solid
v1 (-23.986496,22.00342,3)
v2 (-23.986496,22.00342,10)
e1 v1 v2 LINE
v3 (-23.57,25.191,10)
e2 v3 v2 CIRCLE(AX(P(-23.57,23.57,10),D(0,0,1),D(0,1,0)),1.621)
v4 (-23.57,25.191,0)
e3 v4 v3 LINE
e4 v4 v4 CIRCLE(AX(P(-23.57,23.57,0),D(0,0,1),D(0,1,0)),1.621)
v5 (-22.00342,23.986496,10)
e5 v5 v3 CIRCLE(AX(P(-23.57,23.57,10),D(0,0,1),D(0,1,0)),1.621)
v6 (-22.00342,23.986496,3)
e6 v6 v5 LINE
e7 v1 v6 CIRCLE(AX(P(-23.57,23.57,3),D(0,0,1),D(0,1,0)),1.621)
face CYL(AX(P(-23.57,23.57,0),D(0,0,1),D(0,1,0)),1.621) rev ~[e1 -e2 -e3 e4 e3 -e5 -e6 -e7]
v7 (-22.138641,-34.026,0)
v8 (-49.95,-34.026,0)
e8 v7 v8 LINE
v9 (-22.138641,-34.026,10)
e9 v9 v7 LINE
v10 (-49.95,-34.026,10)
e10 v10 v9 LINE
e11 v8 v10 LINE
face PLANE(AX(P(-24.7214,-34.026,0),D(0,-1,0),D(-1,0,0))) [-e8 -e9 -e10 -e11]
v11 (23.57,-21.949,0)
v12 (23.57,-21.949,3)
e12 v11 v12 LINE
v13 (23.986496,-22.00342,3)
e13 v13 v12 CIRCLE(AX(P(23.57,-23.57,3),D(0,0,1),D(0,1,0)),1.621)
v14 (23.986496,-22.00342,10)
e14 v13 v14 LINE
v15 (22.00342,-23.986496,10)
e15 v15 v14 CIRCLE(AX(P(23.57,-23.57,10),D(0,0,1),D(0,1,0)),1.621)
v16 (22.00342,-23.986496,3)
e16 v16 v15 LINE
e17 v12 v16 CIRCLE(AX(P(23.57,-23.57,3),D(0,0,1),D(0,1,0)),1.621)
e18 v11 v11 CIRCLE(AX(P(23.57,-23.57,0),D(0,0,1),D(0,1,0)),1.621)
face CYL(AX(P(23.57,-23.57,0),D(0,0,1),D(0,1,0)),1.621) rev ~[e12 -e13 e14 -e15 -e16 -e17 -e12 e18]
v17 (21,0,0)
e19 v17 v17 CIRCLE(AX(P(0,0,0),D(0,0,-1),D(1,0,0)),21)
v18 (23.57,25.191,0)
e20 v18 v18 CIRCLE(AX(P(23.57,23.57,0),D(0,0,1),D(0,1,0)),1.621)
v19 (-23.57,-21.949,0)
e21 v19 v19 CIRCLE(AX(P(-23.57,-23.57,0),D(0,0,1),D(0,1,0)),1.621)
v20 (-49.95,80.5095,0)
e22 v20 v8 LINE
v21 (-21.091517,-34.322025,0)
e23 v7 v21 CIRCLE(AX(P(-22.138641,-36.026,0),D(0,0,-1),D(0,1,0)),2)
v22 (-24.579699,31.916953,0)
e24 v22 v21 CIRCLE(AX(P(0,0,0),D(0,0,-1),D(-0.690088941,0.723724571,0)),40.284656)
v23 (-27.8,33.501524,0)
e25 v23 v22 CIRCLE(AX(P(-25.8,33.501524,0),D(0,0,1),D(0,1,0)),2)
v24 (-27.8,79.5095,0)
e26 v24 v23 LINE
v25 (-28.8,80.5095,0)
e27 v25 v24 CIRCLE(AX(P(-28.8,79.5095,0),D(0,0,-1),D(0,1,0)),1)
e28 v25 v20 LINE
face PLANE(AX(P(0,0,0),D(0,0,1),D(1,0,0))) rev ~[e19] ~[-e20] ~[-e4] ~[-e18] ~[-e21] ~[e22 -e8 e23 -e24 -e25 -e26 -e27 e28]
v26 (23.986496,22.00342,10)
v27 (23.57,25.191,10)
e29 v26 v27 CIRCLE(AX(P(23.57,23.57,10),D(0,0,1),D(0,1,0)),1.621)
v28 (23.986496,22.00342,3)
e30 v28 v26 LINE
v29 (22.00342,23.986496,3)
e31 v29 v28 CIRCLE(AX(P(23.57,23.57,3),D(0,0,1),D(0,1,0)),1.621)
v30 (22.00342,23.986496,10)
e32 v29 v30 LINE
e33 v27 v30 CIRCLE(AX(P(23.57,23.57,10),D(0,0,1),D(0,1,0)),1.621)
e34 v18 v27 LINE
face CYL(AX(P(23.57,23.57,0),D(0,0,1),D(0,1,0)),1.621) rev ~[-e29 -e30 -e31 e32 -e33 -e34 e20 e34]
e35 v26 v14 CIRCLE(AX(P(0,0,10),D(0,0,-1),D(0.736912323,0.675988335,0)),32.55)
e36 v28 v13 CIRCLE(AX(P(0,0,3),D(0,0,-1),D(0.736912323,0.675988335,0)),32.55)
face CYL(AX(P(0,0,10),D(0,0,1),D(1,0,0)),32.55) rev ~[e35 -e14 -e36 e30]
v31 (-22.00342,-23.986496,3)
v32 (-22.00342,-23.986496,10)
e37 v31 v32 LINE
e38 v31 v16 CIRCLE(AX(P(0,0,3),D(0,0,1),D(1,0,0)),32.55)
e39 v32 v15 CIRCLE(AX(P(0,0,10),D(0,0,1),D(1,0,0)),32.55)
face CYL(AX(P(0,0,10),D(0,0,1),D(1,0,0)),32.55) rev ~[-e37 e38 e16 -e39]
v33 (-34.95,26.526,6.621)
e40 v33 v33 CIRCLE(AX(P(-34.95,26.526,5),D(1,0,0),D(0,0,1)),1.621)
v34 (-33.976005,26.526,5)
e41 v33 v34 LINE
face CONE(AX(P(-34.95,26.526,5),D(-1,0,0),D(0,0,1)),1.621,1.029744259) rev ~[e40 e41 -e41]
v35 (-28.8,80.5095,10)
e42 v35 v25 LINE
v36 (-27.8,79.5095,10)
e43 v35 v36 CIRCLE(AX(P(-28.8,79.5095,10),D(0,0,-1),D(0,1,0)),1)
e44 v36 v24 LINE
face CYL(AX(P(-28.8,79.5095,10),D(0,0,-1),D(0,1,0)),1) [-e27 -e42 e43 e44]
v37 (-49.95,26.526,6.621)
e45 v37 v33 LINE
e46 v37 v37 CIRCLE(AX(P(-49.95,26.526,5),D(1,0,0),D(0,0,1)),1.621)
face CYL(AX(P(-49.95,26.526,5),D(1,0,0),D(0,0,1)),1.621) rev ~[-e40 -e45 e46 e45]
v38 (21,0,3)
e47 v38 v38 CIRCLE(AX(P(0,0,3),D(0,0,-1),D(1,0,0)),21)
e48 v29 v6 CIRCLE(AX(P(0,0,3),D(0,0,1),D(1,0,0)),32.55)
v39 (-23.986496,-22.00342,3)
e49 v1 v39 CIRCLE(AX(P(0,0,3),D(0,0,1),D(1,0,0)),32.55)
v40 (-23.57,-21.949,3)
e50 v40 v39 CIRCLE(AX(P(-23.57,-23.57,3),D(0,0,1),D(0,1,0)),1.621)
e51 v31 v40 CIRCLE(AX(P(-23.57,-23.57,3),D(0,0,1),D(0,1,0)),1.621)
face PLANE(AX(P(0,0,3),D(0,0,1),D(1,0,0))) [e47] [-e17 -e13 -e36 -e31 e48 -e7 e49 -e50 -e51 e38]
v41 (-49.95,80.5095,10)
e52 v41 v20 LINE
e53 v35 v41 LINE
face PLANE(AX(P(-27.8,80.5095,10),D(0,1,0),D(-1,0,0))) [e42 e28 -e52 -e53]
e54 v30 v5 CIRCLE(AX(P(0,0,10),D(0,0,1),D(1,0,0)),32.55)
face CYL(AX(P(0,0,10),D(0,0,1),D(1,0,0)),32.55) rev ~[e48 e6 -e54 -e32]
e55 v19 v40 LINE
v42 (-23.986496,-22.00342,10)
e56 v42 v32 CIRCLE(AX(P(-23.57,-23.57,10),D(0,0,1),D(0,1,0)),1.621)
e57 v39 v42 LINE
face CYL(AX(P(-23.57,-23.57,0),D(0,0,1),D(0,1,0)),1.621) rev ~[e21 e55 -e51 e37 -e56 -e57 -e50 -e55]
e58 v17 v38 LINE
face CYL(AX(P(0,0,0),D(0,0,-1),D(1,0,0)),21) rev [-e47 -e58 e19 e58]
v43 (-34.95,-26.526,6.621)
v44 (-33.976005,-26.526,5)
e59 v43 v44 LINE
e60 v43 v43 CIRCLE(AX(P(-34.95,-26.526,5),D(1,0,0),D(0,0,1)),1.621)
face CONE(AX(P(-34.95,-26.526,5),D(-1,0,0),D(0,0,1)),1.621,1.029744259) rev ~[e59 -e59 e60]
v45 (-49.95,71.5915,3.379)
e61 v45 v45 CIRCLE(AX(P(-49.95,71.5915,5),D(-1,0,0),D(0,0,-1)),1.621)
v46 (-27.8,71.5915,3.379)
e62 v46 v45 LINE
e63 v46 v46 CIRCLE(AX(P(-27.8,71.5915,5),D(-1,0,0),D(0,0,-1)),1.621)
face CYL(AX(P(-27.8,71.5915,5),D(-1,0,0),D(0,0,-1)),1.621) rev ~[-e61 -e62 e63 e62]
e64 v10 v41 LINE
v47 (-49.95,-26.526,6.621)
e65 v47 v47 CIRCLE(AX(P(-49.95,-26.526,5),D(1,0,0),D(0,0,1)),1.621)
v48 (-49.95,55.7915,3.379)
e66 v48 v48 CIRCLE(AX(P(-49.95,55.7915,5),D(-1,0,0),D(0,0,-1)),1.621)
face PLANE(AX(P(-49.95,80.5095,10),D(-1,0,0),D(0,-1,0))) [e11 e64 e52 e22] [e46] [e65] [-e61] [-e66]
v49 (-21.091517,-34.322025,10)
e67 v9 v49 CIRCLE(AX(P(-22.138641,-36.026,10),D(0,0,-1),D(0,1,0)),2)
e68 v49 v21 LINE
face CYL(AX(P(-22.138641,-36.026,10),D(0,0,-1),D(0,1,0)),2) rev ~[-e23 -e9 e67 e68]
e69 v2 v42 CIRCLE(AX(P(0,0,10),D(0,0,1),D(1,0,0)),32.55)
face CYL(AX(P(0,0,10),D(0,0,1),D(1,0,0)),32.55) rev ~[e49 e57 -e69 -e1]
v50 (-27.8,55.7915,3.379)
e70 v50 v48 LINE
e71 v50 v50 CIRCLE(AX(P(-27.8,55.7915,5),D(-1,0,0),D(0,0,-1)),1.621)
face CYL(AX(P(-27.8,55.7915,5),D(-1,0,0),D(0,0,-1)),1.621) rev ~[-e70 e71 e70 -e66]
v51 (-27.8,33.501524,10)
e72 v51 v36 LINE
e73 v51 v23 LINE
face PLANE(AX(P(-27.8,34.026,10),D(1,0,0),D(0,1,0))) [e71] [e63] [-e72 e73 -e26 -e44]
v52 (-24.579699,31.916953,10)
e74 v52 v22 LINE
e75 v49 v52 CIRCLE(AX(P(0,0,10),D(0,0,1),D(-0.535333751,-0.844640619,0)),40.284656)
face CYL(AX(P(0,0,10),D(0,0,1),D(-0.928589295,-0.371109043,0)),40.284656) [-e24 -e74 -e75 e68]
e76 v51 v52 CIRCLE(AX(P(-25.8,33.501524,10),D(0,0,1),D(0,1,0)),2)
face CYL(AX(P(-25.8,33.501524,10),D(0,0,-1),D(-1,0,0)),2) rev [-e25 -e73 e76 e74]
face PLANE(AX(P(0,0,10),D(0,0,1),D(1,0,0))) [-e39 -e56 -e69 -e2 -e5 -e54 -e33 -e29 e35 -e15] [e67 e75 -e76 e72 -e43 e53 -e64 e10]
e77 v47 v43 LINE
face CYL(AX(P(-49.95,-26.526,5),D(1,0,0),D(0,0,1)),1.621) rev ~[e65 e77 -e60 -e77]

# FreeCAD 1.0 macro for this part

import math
import FreeCAD as App
import Part
import Sketcher
Q = App.Units.Quantity


def edges_at(feature, points):
    """Names of the edges that pass closest to the given points."""
    edges = feature.Shape.Edges
    near = lambda p: min(range(len(edges)), key=lambda i: edges[i].distToShape(Part.Vertex(*p))[0])
    return sorted({f"Edge{near(p) + 1}" for p in points})


def add_polygon(sketch, points):
    """Adds a closed chain of lines whose ends are joined by coincident constraints."""
    first, n = sketch.GeometryCount, len(points)
    for a, b in zip(points, points[1:] + points[:1]):
        sketch.addGeometry(Part.LineSegment(App.Vector(*a, 0), App.Vector(*b, 0)), False)
    for i in range(n):
        sketch.addConstraint(Sketcher.Constraint("Coincident", first + i, 2, first + (i + 1) % n, 1))

doc = App.newDocument("Part")
body = doc.addObject("PartDesign::Body", "Body")

# Sketch on XY plane
sketch1 = body.newObject("Sketcher::SketchObject", "Sketch")
sketch1.AttachmentSupport = (doc.getObject("XY_Plane"), [""])
sketch1.MapMode = "FlatFace"
sketch1.addGeometry(Part.LineSegment(App.Vector(-25, 34, 0), App.Vector(-50, 34, 0)), False)
sketch1.addGeometry(Part.LineSegment(App.Vector(-50, 34, 0), App.Vector(-50, -34, 0)), False)
sketch1.addGeometry(Part.LineSegment(App.Vector(-50, -34, 0), App.Vector(-25, -34, 0)), False)
sketch1.addGeometry(Part.ArcOfCircle(Part.Circle(App.Vector(0, 0, 0), App.Vector(0, 0, 1), 42), math.radians(-126), math.radians(126)), False)
sketch1.addGeometry(Part.Circle(App.Vector(0, 0, 0), App.Vector(0, 0, 1), 21), False)
sketch1.addConstraint(Sketcher.Constraint("Coincident", 0, 2, 1, 1))
sketch1.addConstraint(Sketcher.Constraint("Coincident", 1, 2, 2, 1))
sketch1.addConstraint(Sketcher.Constraint("Coincident", 2, 2, 3, 1))
sketch1.addConstraint(Sketcher.Constraint("Coincident", 3, 2, 0, 1))
sketch1.addConstraint(Sketcher.Constraint("Horizontal", 0))
sketch1.addConstraint(Sketcher.Constraint("Vertical", 1))
sketch1.addConstraint(Sketcher.Constraint("Horizontal", 2))
sketch1.addConstraint(Sketcher.Constraint("Coincident", 3, 3, -1, 1))
sketch1.addConstraint(Sketcher.Constraint("Coincident", 4, 3, -1, 1))
sketch1.addConstraint(Sketcher.Constraint("Vertical", 2, 2, 3, 2))
sketch1.addConstraint(Sketcher.Constraint("Diameter", 4, Q("42 mm")))
sketch1.addConstraint(Sketcher.Constraint("Radius", 3, Q("42.0585 mm")))
sketch1.addConstraint(Sketcher.Constraint("DistanceY", 1, 2, 1, 1, Q("68.052 mm")))
sketch1.addConstraint(Sketcher.Constraint("DistanceX", 0, 2, -1, 1, Q("49.95 mm")))
pad1 = body.newObject("PartDesign::Pad", "Pad")
pad1.Profile = sketch1
pad1.Length = 10

# Sketch on YZ plane
sketch2 = body.newObject("Sketcher::SketchObject", "Sketch001")
sketch2.AttachmentSupport = (doc.getObject("YZ_Plane"), [""])
sketch2.MapMode = "FlatFace"
sketch2.AttachmentOffset = App.Placement(App.Vector(0, 0, -49.95), App.Rotation())
sketch2.addGeometry(Part.Circle(App.Vector(26.5, 5, 0), App.Vector(0, 0, 1), 1.6), False)
sketch2.addGeometry(Part.Circle(App.Vector(-26.5, 5, 0), App.Vector(0, 0, 1), 1.6), False)
sketch2.addConstraint(Sketcher.Constraint("Equal", 0, 1))
sketch2.addConstraint(Sketcher.Constraint("Symmetric", 0, 3, 1, 3, -2))
sketch2.addConstraint(Sketcher.Constraint("Diameter", 0, Q("3.242 mm")))
sketch2.addConstraint(Sketcher.Constraint("DistanceY", -1, 1, 0, 3, Q("5 mm")))
sketch2.addConstraint(Sketcher.Constraint("DistanceX", -1, 1, 0, 3, Q("26.526 mm")))
doc.recompute()
hole = body.newObject("PartDesign::Hole", "Hole")
hole.Profile = sketch2
hole.ThreadType = "None"
hole.Diameter = 3.242
hole.DepthType = "Dimension"
hole.Depth = 15
hole.DrillPoint = "Angled"
hole.DrillPointAngle = 118
hole.Reversed = True

# Sketch on XY plane
sketch3 = body.newObject("Sketcher::SketchObject", "Sketch002")
sketch3.AttachmentSupport = (doc.getObject("XY_Plane"), [""])
sketch3.MapMode = "FlatFace"
sketch3.AttachmentOffset = App.Placement(App.Vector(0, 0, 10), App.Rotation())
sketch3.addGeometry(Part.LineSegment(App.Vector(-21.6, -34, 0), App.Vector(-24.7, -34, 0)), False)
sketch3.addGeometry(Part.ArcOfCircle(Part.Circle(App.Vector(0, 0, 0), App.Vector(0, 0, 1), 42.1), math.radians(-126), math.radians(126)), False)
sketch3.addGeometry(Part.LineSegment(App.Vector(-24.7, 34, 0), App.Vector(-27.8, 34, 0)), False)
sketch3.addGeometry(Part.LineSegment(App.Vector(-27.8, 34, 0), App.Vector(-27.8, 29.2, 0)), False)
sketch3.addGeometry(Part.ArcOfCircle(Part.Circle(App.Vector(0, 0, 0), App.Vector(0, 0, 1), 40.3), math.radians(-122), math.radians(134)), False)
sketch3.addConstraint(Sketcher.Constraint("Coincident", 0, 2, 1, 1))
sketch3.addConstraint(Sketcher.Constraint("Coincident", 1, 2, 2, 1))
sketch3.addConstraint(Sketcher.Constraint("Coincident", 2, 2, 3, 1))
sketch3.addConstraint(Sketcher.Constraint("Coincident", 3, 2, 4, 2))
sketch3.addConstraint(Sketcher.Constraint("Coincident", 4, 1, 0, 1))
sketch3.addConstraint(Sketcher.Constraint("Horizontal", 0))
sketch3.addConstraint(Sketcher.Constraint("Horizontal", 2))
sketch3.addConstraint(Sketcher.Constraint("Vertical", 3))
sketch3.addConstraint(Sketcher.Constraint("Coincident", 1, 3, -1, 1))
sketch3.addConstraint(Sketcher.Constraint("Coincident", 4, 3, -1, 1))
sketch3.addConstraint(Sketcher.Constraint("Vertical", 0, 2, 1, 2))
sketch3.addConstraint(Sketcher.Constraint("DistanceX", 2, 2, -1, 1, Q("27.8 mm")))
sketch3.addConstraint(Sketcher.Constraint("Radius", 1, Q("42.0585 mm")))
sketch3.addConstraint(Sketcher.Constraint("Radius", 4, Q("40.2847 mm")))
sketch3.addConstraint(Sketcher.Constraint("DistanceY", 3, 2, 3, 1, Q("4.871 mm")))
pocket1 = body.newObject("PartDesign::Pocket", "Pocket")
pocket1.Profile = sketch3
pocket1.Length = 10

# Sketch on XY plane
sketch4 = body.newObject("Sketcher::SketchObject", "Sketch003")
sketch4.AttachmentSupport = (doc.getObject("XY_Plane"), [""])
sketch4.MapMode = "FlatFace"
sketch4.AttachmentOffset = App.Placement(App.Vector(0, 0, 10), App.Rotation())
add_polygon(sketch4, [(-50, 34), (-28, 34), (-28, 81), (-50, 81)])  # lines 0-3
sketch4.addConstraint(Sketcher.Constraint("Horizontal", 0))
sketch4.addConstraint(Sketcher.Constraint("Vertical", 1))
sketch4.addConstraint(Sketcher.Constraint("Horizontal", 2))
sketch4.addConstraint(Sketcher.Constraint("Vertical", 3))
sketch4.addConstraint(Sketcher.Constraint("DistanceX", 0, 1, 0, 2, Q("22.15 mm")))
sketch4.addConstraint(Sketcher.Constraint("DistanceX", 0, 2, -1, 1, Q("27.8 mm")))
sketch4.addConstraint(Sketcher.Constraint("DistanceY", 1, 1, 1, 2, Q("46.4835 mm")))
sketch4.addConstraint(Sketcher.Constraint("DistanceY", -1, 1, 0, 2, Q("34.026 mm")))
pad2 = body.newObject("PartDesign::Pad", "Pad001")
pad2.Profile = sketch4
pad2.Length = 10
pad2.Reversed = True
doc.recompute()

fillet = body.newObject("PartDesign::Fillet", "Fillet")
fillet.Base = (pad2, edges_at(pad2, [(-27.8, 29.155, 5), (-21.566, -34.026, 5)]))
fillet.Radius = 2
doc.recompute()

fillet2 = body.newObject("PartDesign::Fillet", "Fillet001")
fillet2.Base = (fillet, edges_at(fillet, [(-27.8, 80.51, 5)]))
fillet2.Radius = 1

# Sketch on YZ plane
sketch5 = body.newObject("Sketcher::SketchObject", "Sketch004")
sketch5.AttachmentSupport = (doc.getObject("YZ_Plane"), [""])
sketch5.MapMode = "FlatFace"
sketch5.AttachmentOffset = App.Placement(App.Vector(0, 0, -27.8), App.Rotation())
sketch5.addGeometry(Part.Circle(App.Vector(55.8, 5, 0), App.Vector(0, 0, 1), 1.6), False)
sketch5.addGeometry(Part.Circle(App.Vector(71.6, 5, 0), App.Vector(0, 0, 1), 1.6), False)
sketch5.addConstraint(Sketcher.Constraint("Equal", 0, 1))
sketch5.addConstraint(Sketcher.Constraint("Horizontal", 0, 3, 1, 3))
sketch5.addConstraint(Sketcher.Constraint("Diameter", 0, Q("3.242 mm")))
sketch5.addConstraint(Sketcher.Constraint("DistanceY", -1, 1, 0, 3, Q("5 mm")))
sketch5.addConstraint(Sketcher.Constraint("DistanceX", 0, 3, 1, 3, Q("15.8 mm")))
sketch5.addConstraint(Sketcher.Constraint("DistanceX", -1, 1, 0, 3, Q("55.7915 mm")))
doc.recompute()
hole2 = body.newObject("PartDesign::Hole", "Hole001")
hole2.Profile = sketch5
hole2.ThreadType = "None"
hole2.Diameter = 3.242
hole2.DepthType = "Dimension"
hole2.Depth = 22.15
hole2.DrillPoint = "Flat"

# Sketch on XY plane
sketch6 = body.newObject("Sketcher::SketchObject", "Sketch005")
sketch6.AttachmentSupport = (doc.getObject("XY_Plane"), [""])
sketch6.MapMode = "FlatFace"
sketch6.AttachmentOffset = App.Placement(App.Vector(0, 0, 10), App.Rotation())
sketch6.addGeometry(Part.Circle(App.Vector(0, 0, 0), App.Vector(0, 0, 1), 33), False)
sketch6.addConstraint(Sketcher.Constraint("Coincident", 0, 3, -1, 1))
sketch6.addConstraint(Sketcher.Constraint("Diameter", 0, Q("65.1 mm")))
pocket2 = body.newObject("PartDesign::Pocket", "Pocket001")
pocket2.Profile = sketch6
pocket2.Length = 7

# Sketch on XY plane
sketch7 = body.newObject("Sketcher::SketchObject", "Sketch006")
sketch7.AttachmentSupport = (doc.getObject("XY_Plane"), [""])
sketch7.MapMode = "FlatFace"
sketch7.addGeometry(Part.Circle(App.Vector(23.6, -23.6, 0), App.Vector(0, 0, 1), 1.6), False)
sketch7.addGeometry(Part.Circle(App.Vector(23.6, 23.6, 0), App.Vector(0, 0, 1), 1.6), False)
sketch7.addGeometry(Part.Circle(App.Vector(-23.6, 23.6, 0), App.Vector(0, 0, 1), 1.6), False)
sketch7.addGeometry(Part.Circle(App.Vector(-23.6, -23.6, 0), App.Vector(0, 0, 1), 1.6), False)
sketch7.addConstraint(Sketcher.Constraint("Equal", 0, 1))
sketch7.addConstraint(Sketcher.Constraint("Equal", 1, 2))
sketch7.addConstraint(Sketcher.Constraint("Equal", 2, 3))
sketch7.addConstraint(Sketcher.Constraint("Symmetric", 0, 3, 2, 3, -1, 1))
sketch7.addConstraint(Sketcher.Constraint("Symmetric", 1, 3, 3, 3, -1, 1))
sketch7.addConstraint(Sketcher.Constraint("Symmetric", 1, 3, 2, 3, -2))
sketch7.addConstraint(Sketcher.Constraint("Diameter", 0, Q("3.242 mm")))
sketch7.addConstraint(Sketcher.Constraint("DistanceX", -1, 1, 0, 3, Q("23.57 mm")))
sketch7.addConstraint(Sketcher.Constraint("DistanceY", 0, 3, -1, 1, Q("23.57 mm")))
doc.recompute()
hole3 = body.newObject("PartDesign::Hole", "Hole002")
hole3.Profile = sketch7
hole3.ThreadType = "None"
hole3.Diameter = 3.242
hole3.DepthType = "Dimension"
hole3.Depth = 12
hole3.DrillPoint = "Angled"
hole3.DrillPointAngle = 118
hole3.Reversed = True

doc.recompute()
